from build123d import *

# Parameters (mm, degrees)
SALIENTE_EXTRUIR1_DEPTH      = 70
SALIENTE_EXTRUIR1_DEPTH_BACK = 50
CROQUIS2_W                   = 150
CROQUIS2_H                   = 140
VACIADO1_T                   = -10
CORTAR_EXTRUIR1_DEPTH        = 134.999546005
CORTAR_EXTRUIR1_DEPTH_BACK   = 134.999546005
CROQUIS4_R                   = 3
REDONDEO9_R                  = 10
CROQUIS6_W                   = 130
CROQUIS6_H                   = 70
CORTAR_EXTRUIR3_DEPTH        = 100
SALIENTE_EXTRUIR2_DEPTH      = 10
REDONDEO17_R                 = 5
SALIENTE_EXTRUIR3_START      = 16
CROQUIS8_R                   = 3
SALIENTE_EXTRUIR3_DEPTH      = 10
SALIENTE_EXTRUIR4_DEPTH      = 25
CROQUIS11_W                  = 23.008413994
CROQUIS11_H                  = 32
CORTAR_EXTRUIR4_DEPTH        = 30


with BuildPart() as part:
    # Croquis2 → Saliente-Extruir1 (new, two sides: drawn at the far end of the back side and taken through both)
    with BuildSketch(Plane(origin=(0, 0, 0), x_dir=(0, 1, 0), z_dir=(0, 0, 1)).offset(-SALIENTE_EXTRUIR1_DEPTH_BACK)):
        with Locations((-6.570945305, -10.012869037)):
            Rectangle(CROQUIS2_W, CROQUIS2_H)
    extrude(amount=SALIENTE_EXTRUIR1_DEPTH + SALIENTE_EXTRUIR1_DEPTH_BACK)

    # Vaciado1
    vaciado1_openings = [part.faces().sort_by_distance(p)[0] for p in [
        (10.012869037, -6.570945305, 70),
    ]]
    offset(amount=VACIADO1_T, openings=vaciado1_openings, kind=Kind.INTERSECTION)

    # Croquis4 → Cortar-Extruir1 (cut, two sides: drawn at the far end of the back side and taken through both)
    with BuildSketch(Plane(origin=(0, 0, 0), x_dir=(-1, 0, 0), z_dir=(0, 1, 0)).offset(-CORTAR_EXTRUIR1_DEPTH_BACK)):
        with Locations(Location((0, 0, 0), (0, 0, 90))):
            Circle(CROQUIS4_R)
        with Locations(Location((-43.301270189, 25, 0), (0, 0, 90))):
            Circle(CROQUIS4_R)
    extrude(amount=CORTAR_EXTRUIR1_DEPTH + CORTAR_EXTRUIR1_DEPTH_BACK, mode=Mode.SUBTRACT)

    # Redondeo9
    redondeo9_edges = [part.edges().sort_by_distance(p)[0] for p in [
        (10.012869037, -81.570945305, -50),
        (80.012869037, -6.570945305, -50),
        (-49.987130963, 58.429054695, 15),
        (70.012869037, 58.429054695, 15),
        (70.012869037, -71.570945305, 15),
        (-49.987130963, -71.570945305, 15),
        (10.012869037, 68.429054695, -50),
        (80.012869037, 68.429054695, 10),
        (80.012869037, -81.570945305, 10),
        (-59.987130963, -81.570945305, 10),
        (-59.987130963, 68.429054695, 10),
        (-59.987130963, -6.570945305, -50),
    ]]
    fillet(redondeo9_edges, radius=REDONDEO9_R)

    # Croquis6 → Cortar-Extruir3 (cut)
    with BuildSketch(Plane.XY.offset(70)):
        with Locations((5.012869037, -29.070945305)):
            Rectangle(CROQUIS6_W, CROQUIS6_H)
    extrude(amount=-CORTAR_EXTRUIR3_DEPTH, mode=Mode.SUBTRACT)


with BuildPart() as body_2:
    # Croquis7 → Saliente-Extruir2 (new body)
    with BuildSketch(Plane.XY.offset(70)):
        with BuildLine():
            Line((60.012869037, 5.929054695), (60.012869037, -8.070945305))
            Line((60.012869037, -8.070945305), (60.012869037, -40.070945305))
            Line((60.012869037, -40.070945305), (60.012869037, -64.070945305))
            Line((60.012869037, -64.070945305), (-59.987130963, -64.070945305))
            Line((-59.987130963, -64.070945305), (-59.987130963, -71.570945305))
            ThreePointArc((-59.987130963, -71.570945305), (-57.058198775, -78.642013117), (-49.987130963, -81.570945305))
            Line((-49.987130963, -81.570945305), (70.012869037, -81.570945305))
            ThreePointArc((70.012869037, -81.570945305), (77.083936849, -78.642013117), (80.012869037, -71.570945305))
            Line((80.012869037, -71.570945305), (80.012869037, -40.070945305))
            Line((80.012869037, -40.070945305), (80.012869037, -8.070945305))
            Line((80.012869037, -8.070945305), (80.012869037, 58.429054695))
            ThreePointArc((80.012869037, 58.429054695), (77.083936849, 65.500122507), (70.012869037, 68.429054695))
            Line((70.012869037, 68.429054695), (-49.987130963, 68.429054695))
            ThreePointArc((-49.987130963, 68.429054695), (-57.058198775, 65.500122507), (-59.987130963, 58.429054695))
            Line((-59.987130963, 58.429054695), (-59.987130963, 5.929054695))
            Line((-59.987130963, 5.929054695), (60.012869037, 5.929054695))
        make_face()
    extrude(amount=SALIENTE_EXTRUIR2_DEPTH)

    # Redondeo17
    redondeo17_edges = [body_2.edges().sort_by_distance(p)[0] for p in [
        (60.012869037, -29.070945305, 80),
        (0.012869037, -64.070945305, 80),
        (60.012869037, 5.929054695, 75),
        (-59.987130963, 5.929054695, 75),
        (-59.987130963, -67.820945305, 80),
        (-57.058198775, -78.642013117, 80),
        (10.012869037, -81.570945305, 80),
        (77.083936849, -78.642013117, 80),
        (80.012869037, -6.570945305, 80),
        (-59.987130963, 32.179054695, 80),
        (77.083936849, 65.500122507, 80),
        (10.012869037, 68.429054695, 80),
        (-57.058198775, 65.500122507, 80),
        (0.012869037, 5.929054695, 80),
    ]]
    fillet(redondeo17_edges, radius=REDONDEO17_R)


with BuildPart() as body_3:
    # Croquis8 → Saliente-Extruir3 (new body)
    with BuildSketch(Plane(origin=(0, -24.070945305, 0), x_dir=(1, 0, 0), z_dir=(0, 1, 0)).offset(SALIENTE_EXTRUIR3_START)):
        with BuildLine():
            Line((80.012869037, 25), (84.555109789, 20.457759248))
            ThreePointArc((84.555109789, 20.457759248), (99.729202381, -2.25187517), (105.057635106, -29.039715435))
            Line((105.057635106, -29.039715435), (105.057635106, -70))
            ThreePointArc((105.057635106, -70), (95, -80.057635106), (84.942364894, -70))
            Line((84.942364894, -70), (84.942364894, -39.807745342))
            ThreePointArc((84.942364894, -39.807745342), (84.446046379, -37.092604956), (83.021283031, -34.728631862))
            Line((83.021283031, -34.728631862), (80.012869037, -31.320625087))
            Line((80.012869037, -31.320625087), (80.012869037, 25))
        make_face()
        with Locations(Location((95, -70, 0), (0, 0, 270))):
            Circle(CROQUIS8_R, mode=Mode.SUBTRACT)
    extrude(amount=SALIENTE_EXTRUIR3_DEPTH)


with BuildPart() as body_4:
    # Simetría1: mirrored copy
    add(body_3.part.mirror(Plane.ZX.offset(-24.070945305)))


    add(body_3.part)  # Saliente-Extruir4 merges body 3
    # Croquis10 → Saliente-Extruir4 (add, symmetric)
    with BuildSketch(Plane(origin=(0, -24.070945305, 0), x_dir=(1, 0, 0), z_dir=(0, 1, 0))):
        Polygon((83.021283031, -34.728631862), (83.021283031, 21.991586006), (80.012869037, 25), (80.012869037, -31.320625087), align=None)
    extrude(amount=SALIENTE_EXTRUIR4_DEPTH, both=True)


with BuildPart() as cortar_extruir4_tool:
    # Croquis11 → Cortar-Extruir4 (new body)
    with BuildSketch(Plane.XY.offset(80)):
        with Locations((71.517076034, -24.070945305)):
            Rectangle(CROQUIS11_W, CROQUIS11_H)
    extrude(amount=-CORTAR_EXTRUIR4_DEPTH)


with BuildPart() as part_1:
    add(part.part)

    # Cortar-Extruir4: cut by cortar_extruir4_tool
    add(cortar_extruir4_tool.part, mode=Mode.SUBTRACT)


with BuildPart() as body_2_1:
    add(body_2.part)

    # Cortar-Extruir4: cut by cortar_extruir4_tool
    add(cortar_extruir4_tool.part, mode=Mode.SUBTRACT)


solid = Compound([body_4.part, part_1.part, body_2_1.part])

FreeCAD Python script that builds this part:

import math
import FreeCAD as App
import Part
import Sketcher
Q = App.Units.Quantity


def edges_at(feature, points):
    """Names of the edges that pass closest to the given points."""
    edges = feature.Shape.Edges
    near = lambda p: min(range(len(edges)), key=lambda i: edges[i].distToShape(Part.Vertex(*p))[0])
    return sorted({f"Edge{near(p) + 1}" for p in points})


def faces_at(feature, points):
    """Names of the faces that lie closest to the given points."""
    faces = feature.Shape.Faces
    near = lambda p: min(range(len(faces)), key=lambda i: faces[i].distToShape(Part.Vertex(*p))[0])
    return sorted({f"Face{near(p) + 1}" for p in points})


def add_polygon(sketch, points):
    """Adds a closed chain of lines whose ends are joined by coincident constraints."""
    first, n = sketch.GeometryCount, len(points)
    for a, b in zip(points, points[1:] + points[:1]):
        sketch.addGeometry(Part.LineSegment(App.Vector(*a, 0), App.Vector(*b, 0)), False)
    for i in range(n):
        sketch.addConstraint(Sketcher.Constraint("Coincident", first + i, 2, first + (i + 1) % n, 1))

doc = App.newDocument("Part")
params = doc.addObject("Spreadsheet::Sheet", "Params")
for row, (alias, value) in enumerate([
    ("sketch1_width", "140 mm"),
    ("sketch1_height", "150 mm"),
    ("pad1_length", "70 mm"),
    ("pad1_length2", "50 mm"),
    ("thickness_wall", "10 mm"),
    ("sketch2_diameter", "6 mm"),
    ("fillet_radius", "10 mm"),
    ("sketch3_width", "130 mm"),
    ("sketch3_height", "70 mm"),
    ("pocket2_length", "100 mm"),
    ("sketch4_radius", "10 mm"),
    ("sketch4_width", "120 mm"),
    ("sketch4_height", "70 mm"),
    ("sketch4_height2", "130 mm"),
    ("sketch4_height3", "7.5 mm"),
    ("pad2_length", "10 mm"),
    ("fillet2_radius", "5 mm"),
    ("sketch5_diameter", "6 mm"),
    ("sketch5_radius", "70 mm"),
    ("pad3_length", "10 mm"),
    ("pad4_length", "50 mm"),
    ("sketch7_height", "32 mm"),
    ("pad5_length", "30 mm"),
], start=1):
    params.set(f"A{row}", alias)
    params.set(f"B{row}", "=" + value)
    params.setAlias(f"B{row}", alias)

body = doc.addObject("PartDesign::Body", "Body")

sketch1 = body.newObject("Sketcher::SketchObject", "Sketch")
sketch1.AttachmentSupport = (doc.getObject("XY_Plane"), [""])
sketch1.MapMode = "FlatFace"
add_polygon(sketch1, [(-60, -82), (80, -82), (80, 68), (-60, 68)])
sketch1.addConstraint(Sketcher.Constraint("Horizontal", 0))
sketch1.addConstraint(Sketcher.Constraint("Vertical", 1))
sketch1.addConstraint(Sketcher.Constraint("Horizontal", 2))
sketch1.addConstraint(Sketcher.Constraint("Vertical", 3))
sketch1.addConstraint(Sketcher.Constraint("DistanceX", 0, 1, 0, 2, Q("140 mm")))
sketch1.addConstraint(Sketcher.Constraint("DistanceY", 1, 1, 1, 2, Q("150 mm")))
sketch1.addConstraint(Sketcher.Constraint("DistanceX", -1, 1, 0, 2, Q("80.012869 mm")))
sketch1.addConstraint(Sketcher.Constraint("DistanceY", 0, 2, -1, 1, Q("81.570945 mm")))
sketch1.setExpression("Constraints[8]", "Params.sketch1_width")
sketch1.setExpression("Constraints[9]", "Params.sketch1_height")
pad1 = body.newObject("PartDesign::Pad", "Pad")
pad1.Profile = sketch1
pad1.Type = "TwoLengths"
pad1.setExpression("Length", "Params.pad1_length")
pad1.setExpression("Length2", "Params.pad1_length2")
doc.recompute()

thickness = body.newObject("PartDesign::Thickness", "Thickness")
thickness.Base = (pad1, faces_at(pad1, [(10.013, -6.571, 70)]))
thickness.setExpression("Value", "Params.thickness_wall")
thickness.Reversed = True
thickness.Join = "Intersection"

sketch2 = body.newObject("Sketcher::SketchObject", "Sketch001")
sketch2.AttachmentSupport = (doc.getObject("XZ_Plane"), [""])
sketch2.MapMode = "FlatFace"
sketch2.addGeometry(Part.Circle(App.Vector(0, 0, 0), App.Vector(0, 0, 1), 3), False)
sketch2.addGeometry(Part.Circle(App.Vector(43.3, 25, 0), App.Vector(0, 0, 1), 3), False)
sketch2.addConstraint(Sketcher.Constraint("Coincident", 0, 3, -1, 1))
sketch2.addConstraint(Sketcher.Constraint("Equal", 0, 1))
sketch2.addConstraint(Sketcher.Constraint("Diameter", 0, Q("6 mm")))
sketch2.addConstraint(Sketcher.Constraint("DistanceY", -1, 1, 1, 3, Q("25 mm")))
sketch2.addConstraint(Sketcher.Constraint("DistanceX", -1, 1, 1, 3, Q("43.30127 mm")))
sketch2.setExpression("Constraints[2]", "Params.sketch2_diameter")
pocket1 = body.newObject("PartDesign::Pocket", "Pocket")
pocket1.Profile = sketch2
pocket1.Type = "ThroughAll"
pocket1.Midplane = True
doc.recompute()

fillet = body.newObject("PartDesign::Fillet", "Fillet")
fillet.Base = (pocket1, edges_at(pocket1, [
    (10.013, -81.571, -50),
    (80.013, -6.571, -50),
    (-49.987, 58.429, 15),
    (70.013, 58.429, 15),
    (70.013, -71.571, 15),
    (-49.987, -71.571, 15),
    (10.013, 68.429, -50),
    (80.013, 68.429, 10),
    (80.013, -81.571, 10),
    (-59.987, -81.571, 10),
    (-59.987, 68.429, 10),
    (-59.987, -6.571, -50),
]))
fillet.setExpression("Radius", "Params.fillet_radius")

sketch3 = body.newObject("Sketcher::SketchObject", "Sketch002")
sketch3.AttachmentSupport = (doc.getObject("XY_Plane"), [""])
sketch3.MapMode = "FlatFace"
sketch3.AttachmentOffset = App.Placement(App.Vector(0, 0, 70), App.Rotation())
add_polygon(sketch3, [(-60, 6), (-60, -64), (70, -64), (70, 6)])
sketch3.addConstraint(Sketcher.Constraint("Vertical", 0))
sketch3.addConstraint(Sketcher.Constraint("Horizontal", 1))
sketch3.addConstraint(Sketcher.Constraint("Vertical", 2))
sketch3.addConstraint(Sketcher.Constraint("Horizontal", 3))
sketch3.addConstraint(Sketcher.Constraint("DistanceX", 1, 1, 1, 2, Q("130 mm")))
sketch3.addConstraint(Sketcher.Constraint("DistanceY", 0, 2, 0, 1, Q("70 mm")))
sketch3.addConstraint(Sketcher.Constraint("DistanceX", 0, 2, -1, 1, Q("59.987131 mm")))
sketch3.addConstraint(Sketcher.Constraint("DistanceY", 0, 2, -1, 1, Q("64.070945 mm")))
sketch3.setExpression("Constraints[8]", "Params.sketch3_width")
sketch3.setExpression("Constraints[9]", "Params.sketch3_height")
pocket2 = body.newObject("PartDesign::Pocket", "Pocket001")
pocket2.Profile = sketch3
pocket2.setExpression("Length", "Params.pocket2_length")
body2 = doc.addObject("PartDesign::Body", "Body001")

sketch4 = body2.newObject("Sketcher::SketchObject", "Sketch003")
sketch4.AttachmentSupport = (doc.getObject("XY_Plane001"), [""])
sketch4.MapMode = "FlatFace"
sketch4.AttachmentOffset = App.Placement(App.Vector(0, 0, 70), App.Rotation())
sketch4.addGeometry(Part.LineSegment(App.Vector(60, 6, 0), App.Vector(60, -64, 0)), False)
sketch4.addGeometry(Part.LineSegment(App.Vector(60, -64, 0), App.Vector(-60, -64, 0)), False)
sketch4.addGeometry(Part.LineSegment(App.Vector(-60, -64, 0), App.Vector(-60, -72, 0)), False)
sketch4.addGeometry(Part.ArcOfCircle(Part.Circle(App.Vector(-50, -72, 0), App.Vector(0, 0, 1), 10), math.radians(180), math.radians(270)), False)
sketch4.addGeometry(Part.LineSegment(App.Vector(-50, -82, 0), App.Vector(70, -82, 0)), False)
sketch4.addGeometry(Part.ArcOfCircle(Part.Circle(App.Vector(70, -72, 0), App.Vector(0, 0, 1), 10), math.radians(-90), math.radians(0)), False)
sketch4.addGeometry(Part.LineSegment(App.Vector(80, -72, 0), App.Vector(80, 58, 0)), False)
sketch4.addGeometry(Part.ArcOfCircle(Part.Circle(App.Vector(70, 58, 0), App.Vector(0, 0, 1), 10), math.radians(0), math.radians(90)), False)
sketch4.addGeometry(Part.LineSegment(App.Vector(70, 68, 0), App.Vector(-50, 68, 0)), False)
sketch4.addGeometry(Part.ArcOfCircle(Part.Circle(App.Vector(-50, 58, 0), App.Vector(0, 0, 1), 10), math.radians(90), math.radians(180)), False)
sketch4.addGeometry(Part.LineSegment(App.Vector(-60, 58, 0), App.Vector(-60, 6, 0)), False)
sketch4.addGeometry(Part.LineSegment(App.Vector(-60, 6, 0), App.Vector(60, 6, 0)), False)
sketch4.addConstraint(Sketcher.Constraint("Coincident", 0, 2, 1, 1))
sketch4.addConstraint(Sketcher.Constraint("Coincident", 1, 2, 2, 1))
sketch4.addConstraint(Sketcher.Constraint("Tangent", 2, 2, 3, 1))
sketch4.addConstraint(Sketcher.Constraint("Tangent", 3, 2, 4, 1))
sketch4.addConstraint(Sketcher.Constraint("Tangent", 4, 2, 5, 1))
sketch4.addConstraint(Sketcher.Constraint("Tangent", 5, 2, 6, 1))
sketch4.addConstraint(Sketcher.Constraint("Tangent", 6, 2, 7, 1))
sketch4.addConstraint(Sketcher.Constraint("Tangent", 7, 2, 8, 1))
sketch4.addConstraint(Sketcher.Constraint("Tangent", 8, 2, 9, 1))
sketch4.addConstraint(Sketcher.Constraint("Tangent", 9, 2, 10, 1))
sketch4.addConstraint(Sketcher.Constraint("Coincident", 10, 2, 11, 1))
sketch4.addConstraint(Sketcher.Constraint("Coincident", 11, 2, 0, 1))
sketch4.addConstraint(Sketcher.Constraint("Vertical", 0))
sketch4.addConstraint(Sketcher.Constraint("Horizontal", 1))
sketch4.addConstraint(Sketcher.Constraint("Vertical", 2))
sketch4.addConstraint(Sketcher.Constraint("Horizontal", 4))
sketch4.addConstraint(Sketcher.Constraint("Vertical", 6))
sketch4.addConstraint(Sketcher.Constraint("Horizontal", 8))
sketch4.addConstraint(Sketcher.Constraint("Vertical", 10))
sketch4.addConstraint(Sketcher.Constraint("Horizontal", 11))
sketch4.addConstraint(Sketcher.Constraint("Equal", 3, 5))
sketch4.addConstraint(Sketcher.Constraint("Equal", 5, 7))
sketch4.addConstraint(Sketcher.Constraint("Equal", 7, 9))
sketch4.addConstraint(Sketcher.Constraint("Vertical", 3, 3, 9, 3))
sketch4.addConstraint(Sketcher.Constraint("Equal", 1, 4))
sketch4.addConstraint(Sketcher.Constraint("Radius", 3, Q("10 mm")))
sketch4.addConstraint(Sketcher.Constraint("DistanceX", 1, 2, 1, 1, Q("120 mm")))
sketch4.addConstraint(Sketcher.Constraint("DistanceY", 0, 2, 0, 1, Q("70 mm")))
sketch4.addConstraint(Sketcher.Constraint("DistanceY", 6, 1, 6, 2, Q("130 mm")))
sketch4.addConstraint(Sketcher.Constraint("DistanceY", 2, 2, 2, 1, Q("7.5 mm")))
sketch4.addConstraint(Sketcher.Constraint("DistanceX", 3, 3, -1, 1, Q("49.987131 mm")))
sketch4.addConstraint(Sketcher.Constraint("DistanceY", 3, 3, -1, 1, Q("71.570945 mm")))
sketch4.setExpression("Constraints[25]", "Params.sketch4_radius")
sketch4.setExpression("Constraints[26]", "Params.sketch4_width")
sketch4.setExpression("Constraints[27]", "Params.sketch4_height")
sketch4.setExpression("Constraints[28]", "Params.sketch4_height2")
sketch4.setExpression("Constraints[29]", "Params.sketch4_height3")
pad2 = body2.newObject("PartDesign::Pad", "Pad001")
pad2.Profile = sketch4
pad2.setExpression("Length", "Params.pad2_length")
doc.recompute()

fillet2 = body2.newObject("PartDesign::Fillet", "Fillet001")
fillet2.Base = (pad2, edges_at(pad2, [
    (60.013, -29.071, 80),
    (0.013, -64.071, 80),
    (60.013, 5.929, 75),
    (-59.987, 5.929, 75),
    (-59.987, -67.821, 80),
    (-57.058, -78.642, 80),
    (10.013, -81.571, 80),
    (77.084, -78.642, 80),
    (80.013, -6.571, 80),
    (-59.987, 32.179, 80),
    (77.084, 65.5, 80),
    (10.013, 68.429, 80),
    (-57.058, 65.5, 80),
    (0.013, 5.929, 80),
]))
fillet2.setExpression("Radius", "Params.fillet2_radius")
body3 = doc.addObject("PartDesign::Body", "Body002")

sketch5 = body3.newObject("Sketcher::SketchObject", "Sketch004")
sketch5.AttachmentSupport = (doc.getObject("XZ_Plane002"), [""])
sketch5.MapMode = "FlatFace"
sketch5.AttachmentOffset = App.Placement(App.Vector(0, 0, 8.070945), App.Rotation())
sketch5.addGeometry(Part.LineSegment(App.Vector(84.6, -20.5, 0), App.Vector(80, -25, 0)), False)
sketch5.addGeometry(Part.LineSegment(App.Vector(80, -25, 0), App.Vector(80, 31.3, 0)), False)
sketch5.addGeometry(Part.LineSegment(App.Vector(80, 31.3, 0), App.Vector(83, 34.7, 0)), False)
sketch5.addGeometry(Part.ArcOfCircle(Part.Circle(App.Vector(77.3, 39.8, 0), App.Vector(0, 0, 1), 7.7), math.radians(-41), math.radians(0)), False)
sketch5.addGeometry(Part.LineSegment(App.Vector(84.9, 39.8, 0), App.Vector(84.9, 70, 0)), False)
sketch5.addGeometry(Part.ArcOfCircle(Part.Circle(App.Vector(95, 70, 0), App.Vector(0, 0, 1), 10.1), math.radians(0), math.radians(180)), False)
sketch5.addGeometry(Part.LineSegment(App.Vector(105.1, 70, 0), App.Vector(105.1, 29, 0)), False)
sketch5.addGeometry(Part.ArcOfCircle(Part.Circle(App.Vector(35.1, 29, 0), App.Vector(0, 0, 1), 70), math.radians(-45), math.radians(0)), False)
sketch5.addGeometry(Part.Circle(App.Vector(95, 70, 0), App.Vector(0, 0, 1), 3), False)
sketch5.addConstraint(Sketcher.Constraint("Coincident", 0, 2, 1, 1))
sketch5.addConstraint(Sketcher.Constraint("Coincident", 1, 2, 2, 1))
sketch5.addConstraint(Sketcher.Constraint("Tangent", 2, 2, 3, 1))
sketch5.addConstraint(Sketcher.Constraint("Tangent", 3, 2, 4, 1))
sketch5.addConstraint(Sketcher.Constraint("Tangent", 4, 2, 5, 2))
sketch5.addConstraint(Sketcher.Constraint("Tangent", 5, 1, 6, 1))
sketch5.addConstraint(Sketcher.Constraint("Tangent", 6, 2, 7, 2))
sketch5.addConstraint(Sketcher.Constraint("Tangent", 7, 1, 0, 1))
sketch5.addConstraint(Sketcher.Constraint("Vertical", 1))
sketch5.addConstraint(Sketcher.Constraint("Vertical", 4))
sketch5.addConstraint(Sketcher.Constraint("Vertical", 6))
sketch5.addConstraint(Sketcher.Constraint("Coincident", 8, 3, 5, 3))
sketch5.addConstraint(Sketcher.Constraint("Diameter", 8, Q("6 mm")))
sketch5.addConstraint(Sketcher.Constraint("Radius", 7, Q("70 mm")))
sketch5.addConstraint(Sketcher.Constraint("Angle", 0, Q("-135 deg")))
sketch5.addConstraint(Sketcher.Constraint("DistanceX", -1, 1, 5, 3, Q("95 mm")))
sketch5.addConstraint(Sketcher.Constraint("DistanceY", -1, 1, 5, 3, Q("70 mm")))
sketch5.addConstraint(Sketcher.Constraint("DistanceY", 0, 2, -1, 1, Q("25 mm")))
sketch5.addConstraint(Sketcher.Constraint("Radius", 3, Q("7.674829 mm")))
sketch5.addConstraint(Sketcher.Constraint("Radius", 5, Q("10.057635 mm")))
sketch5.addConstraint(Sketcher.Constraint("Distance", 0, Q("6.423698 mm")))
sketch5.addConstraint(Sketcher.Constraint("DistanceY", 1, 1, 1, 2, Q("56.320625 mm")))
sketch5.addConstraint(Sketcher.Constraint("DistanceY", 4, 1, 4, 2, Q("30.192255 mm")))
sketch5.setExpression("Constraints[12]", "Params.sketch5_diameter")
sketch5.setExpression("Constraints[13]", "Params.sketch5_radius")
pad3 = body3.newObject("PartDesign::Pad", "Pad002")
pad3.Profile = sketch5
pad3.setExpression("Length", "Params.pad3_length")
pad3.Reversed = True
body4 = doc.addObject("PartDesign::Body", "Body003")
body4.AllowCompound = True
doc.recompute()

mirroring = doc.addObject("Part::Mirroring", "Mirroring")
mirroring.Source = body3
mirroring.Base = App.Vector(0, -24.070945, 0)
mirroring.Normal = App.Vector(0, 1, 0)
body4.BaseFeature = mirroring
doc.recompute()

boolean = body4.newObject("PartDesign::Boolean", "Boolean")
boolean.Type = "Fuse"
boolean.addObjects([body3])

sketch6 = body4.newObject("Sketcher::SketchObject", "Sketch005")
sketch6.AttachmentSupport = (doc.getObject("XZ_Plane003"), [""])
sketch6.MapMode = "FlatFace"
sketch6.AttachmentOffset = App.Placement(App.Vector(0, 0, 24.070945), App.Rotation())
add_polygon(sketch6, [(83, 34.7), (83, -22), (80, -25), (80, 31.3)])
sketch6.addConstraint(Sketcher.Constraint("Vertical", 0))
sketch6.addConstraint(Sketcher.Constraint("Vertical", 2))
sketch6.addConstraint(Sketcher.Constraint("Angle", 1, Q("-135 deg")))
sketch6.addConstraint(Sketcher.Constraint("DistanceY", 1, 2, -1, 1, Q("25 mm")))
sketch6.addConstraint(Sketcher.Constraint("Distance", 1, Q("4.25454 mm")))
sketch6.addConstraint(Sketcher.Constraint("DistanceY", 0, 2, 0, 1, Q("56.720218 mm")))
sketch6.addConstraint(Sketcher.Constraint("DistanceY", 2, 1, 2, 2, Q("56.320625 mm")))
sketch6.addConstraint(Sketcher.Constraint("DistanceX", -1, 1, 1, 2, Q("80.012869 mm")))
pad4 = body4.newObject("PartDesign::Pad", "Pad003")
pad4.Profile = sketch6
pad4.setExpression("Length", "Params.pad4_length")
pad4.Midplane = True
body5 = doc.addObject("PartDesign::Body", "Body004")

sketch7 = body5.newObject("Sketcher::SketchObject", "Sketch006")
sketch7.AttachmentSupport = (doc.getObject("XY_Plane004"), [""])
sketch7.MapMode = "FlatFace"
sketch7.AttachmentOffset = App.Placement(App.Vector(0, 0, 80), App.Rotation())
add_polygon(sketch7, [(60, -8), (60, -40), (83, -40), (83, -8)])
sketch7.addConstraint(Sketcher.Constraint("Vertical", 0))
sketch7.addConstraint(Sketcher.Constraint("Horizontal", 1))
sketch7.addConstraint(Sketcher.Constraint("Vertical", 2))
sketch7.addConstraint(Sketcher.Constraint("Horizontal", 3))
sketch7.addConstraint(Sketcher.Constraint("DistanceY", 0, 2, 0, 1, Q("32 mm")))
sketch7.addConstraint(Sketcher.Constraint("DistanceX", 1, 1, 1, 2, Q("23.008414 mm")))
sketch7.addConstraint(Sketcher.Constraint("DistanceX", -1, 1, 0, 2, Q("60.012869 mm")))
sketch7.addConstraint(Sketcher.Constraint("DistanceY", 0, 2, -1, 1, Q("40.070945 mm")))
sketch7.setExpression("Constraints[8]", "Params.sketch7_height")
pad5 = body5.newObject("PartDesign::Pad", "Pad004")
pad5.Profile = sketch7
pad5.setExpression("Length", "Params.pad5_length")
pad5.Reversed = True
doc.recompute()

body6 = doc.addObject("PartDesign::Body", "Body005")
body6.BaseFeature = body5
boolean2 = body.newObject("PartDesign::Boolean", "Boolean001")
boolean2.Type = "Cut"
boolean2.addObjects([body6])
doc.recompute()
body2.AllowCompound = True
doc.recompute()

boolean3 = body2.newObject("PartDesign::Boolean", "Boolean002")
boolean3.Type = "Cut"
boolean3.addObjects([body5])
mirroring.Visibility = False

doc.recompute()
